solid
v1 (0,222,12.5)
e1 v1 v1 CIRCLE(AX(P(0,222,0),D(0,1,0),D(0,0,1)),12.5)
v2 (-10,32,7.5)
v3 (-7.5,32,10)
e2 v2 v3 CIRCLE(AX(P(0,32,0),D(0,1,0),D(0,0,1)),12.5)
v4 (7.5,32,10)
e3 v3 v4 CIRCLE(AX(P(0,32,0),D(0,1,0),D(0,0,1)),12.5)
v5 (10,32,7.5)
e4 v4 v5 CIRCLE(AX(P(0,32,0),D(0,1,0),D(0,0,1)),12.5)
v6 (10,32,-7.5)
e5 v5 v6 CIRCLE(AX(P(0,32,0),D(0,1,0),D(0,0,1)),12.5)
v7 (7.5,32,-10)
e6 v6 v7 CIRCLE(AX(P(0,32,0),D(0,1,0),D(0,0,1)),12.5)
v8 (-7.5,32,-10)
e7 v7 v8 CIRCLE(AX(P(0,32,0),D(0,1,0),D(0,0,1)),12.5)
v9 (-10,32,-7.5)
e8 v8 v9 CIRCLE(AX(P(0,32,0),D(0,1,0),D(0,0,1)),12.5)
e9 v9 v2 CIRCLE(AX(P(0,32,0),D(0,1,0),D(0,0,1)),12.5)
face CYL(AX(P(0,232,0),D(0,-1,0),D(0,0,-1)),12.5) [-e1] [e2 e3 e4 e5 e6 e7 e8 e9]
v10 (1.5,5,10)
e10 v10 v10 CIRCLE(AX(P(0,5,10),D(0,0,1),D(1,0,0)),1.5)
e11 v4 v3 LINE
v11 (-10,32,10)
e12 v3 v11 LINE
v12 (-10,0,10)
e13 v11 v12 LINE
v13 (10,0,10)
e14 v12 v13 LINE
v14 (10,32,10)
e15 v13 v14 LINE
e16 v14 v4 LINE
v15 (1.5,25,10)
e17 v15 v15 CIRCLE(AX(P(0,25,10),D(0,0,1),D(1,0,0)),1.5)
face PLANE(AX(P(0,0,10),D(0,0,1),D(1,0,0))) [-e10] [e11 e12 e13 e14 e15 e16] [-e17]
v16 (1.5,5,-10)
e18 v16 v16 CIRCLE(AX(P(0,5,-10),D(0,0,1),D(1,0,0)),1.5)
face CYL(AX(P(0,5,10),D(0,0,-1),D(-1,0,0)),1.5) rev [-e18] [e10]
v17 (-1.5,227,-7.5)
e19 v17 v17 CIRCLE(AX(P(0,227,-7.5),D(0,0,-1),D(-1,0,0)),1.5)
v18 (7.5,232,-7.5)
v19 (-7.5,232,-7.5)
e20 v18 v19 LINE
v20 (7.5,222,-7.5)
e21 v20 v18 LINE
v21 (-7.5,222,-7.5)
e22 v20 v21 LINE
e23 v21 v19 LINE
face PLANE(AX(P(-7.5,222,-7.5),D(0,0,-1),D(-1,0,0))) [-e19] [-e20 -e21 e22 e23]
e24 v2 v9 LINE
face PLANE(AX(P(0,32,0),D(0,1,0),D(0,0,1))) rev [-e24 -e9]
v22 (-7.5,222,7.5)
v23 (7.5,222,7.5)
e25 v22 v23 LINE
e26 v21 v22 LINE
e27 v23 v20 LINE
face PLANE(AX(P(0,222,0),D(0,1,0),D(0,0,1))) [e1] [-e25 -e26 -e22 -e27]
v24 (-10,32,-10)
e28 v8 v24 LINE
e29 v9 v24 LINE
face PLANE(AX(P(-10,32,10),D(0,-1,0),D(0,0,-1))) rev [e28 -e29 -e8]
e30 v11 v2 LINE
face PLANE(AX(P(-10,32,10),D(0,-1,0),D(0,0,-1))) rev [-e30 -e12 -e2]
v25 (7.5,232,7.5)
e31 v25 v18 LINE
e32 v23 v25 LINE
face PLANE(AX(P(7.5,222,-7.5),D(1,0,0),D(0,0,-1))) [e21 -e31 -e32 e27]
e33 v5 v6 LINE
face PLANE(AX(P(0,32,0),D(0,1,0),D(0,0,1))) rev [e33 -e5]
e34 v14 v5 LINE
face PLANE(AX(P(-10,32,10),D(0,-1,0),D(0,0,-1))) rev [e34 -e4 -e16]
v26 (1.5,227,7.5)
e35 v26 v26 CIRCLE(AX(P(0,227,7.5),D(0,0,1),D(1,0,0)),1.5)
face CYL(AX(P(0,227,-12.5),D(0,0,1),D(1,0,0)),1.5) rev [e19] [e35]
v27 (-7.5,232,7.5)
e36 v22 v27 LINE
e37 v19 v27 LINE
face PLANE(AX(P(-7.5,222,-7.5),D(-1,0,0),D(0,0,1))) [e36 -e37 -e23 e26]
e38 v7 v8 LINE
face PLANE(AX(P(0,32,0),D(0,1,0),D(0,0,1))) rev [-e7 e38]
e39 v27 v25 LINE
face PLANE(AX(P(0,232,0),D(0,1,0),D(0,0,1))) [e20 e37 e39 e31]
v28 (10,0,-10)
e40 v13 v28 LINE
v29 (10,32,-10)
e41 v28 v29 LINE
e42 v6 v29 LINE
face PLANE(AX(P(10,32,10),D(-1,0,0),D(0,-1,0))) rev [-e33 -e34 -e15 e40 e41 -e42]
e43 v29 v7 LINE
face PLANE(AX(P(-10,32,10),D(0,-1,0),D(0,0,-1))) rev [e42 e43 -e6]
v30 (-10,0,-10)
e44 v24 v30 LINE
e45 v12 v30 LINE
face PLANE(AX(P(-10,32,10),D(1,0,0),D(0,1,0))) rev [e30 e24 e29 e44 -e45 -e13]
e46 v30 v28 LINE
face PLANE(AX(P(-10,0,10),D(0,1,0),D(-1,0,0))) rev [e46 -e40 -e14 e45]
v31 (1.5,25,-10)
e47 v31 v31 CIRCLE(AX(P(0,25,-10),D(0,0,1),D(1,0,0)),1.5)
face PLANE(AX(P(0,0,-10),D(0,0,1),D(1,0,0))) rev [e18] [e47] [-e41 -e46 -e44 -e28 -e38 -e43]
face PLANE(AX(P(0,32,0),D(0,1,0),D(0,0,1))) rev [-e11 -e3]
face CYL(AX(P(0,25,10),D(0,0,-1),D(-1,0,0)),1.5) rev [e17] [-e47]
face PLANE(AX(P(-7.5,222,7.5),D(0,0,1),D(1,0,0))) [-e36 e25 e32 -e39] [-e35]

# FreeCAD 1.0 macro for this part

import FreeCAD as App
import Part
import Sketcher
Q = App.Units.Quantity

doc = App.newDocument("Part")
body = doc.addObject("PartDesign::Body", "Body")

# Sketch on XY plane
sketch1 = body.newObject("Sketcher::SketchObject", "Sketch")
sketch1.AttachmentSupport = (doc.getObject("XY_Plane"), [""])
sketch1.MapMode = "FlatFace"
sketch1.addGeometry(Part.LineSegment(App.Vector(-10, 32, 0), App.Vector(-10, 0, 0)), False)
sketch1.addGeometry(Part.LineSegment(App.Vector(-10, 0, 0), App.Vector(10, 0, 0)), False)
sketch1.addGeometry(Part.LineSegment(App.Vector(10, 0, 0), App.Vector(10, 32, 0)), False)
sketch1.addGeometry(Part.LineSegment(App.Vector(10, 32, 0), App.Vector(-10, 32, 0)), False)
sketch1.addGeometry(Part.Circle(App.Vector(0, 5, 0), App.Vector(0, 0, 1), 1.5), False)
sketch1.addGeometry(Part.Circle(App.Vector(0, 25, 0), App.Vector(0, 0, 1), 1.5), False)
sketch1.addConstraint(Sketcher.Constraint("Coincident", 0, 2, 1, 1))
sketch1.addConstraint(Sketcher.Constraint("Coincident", 1, 2, 2, 1))
sketch1.addConstraint(Sketcher.Constraint("Coincident", 2, 2, 3, 1))
sketch1.addConstraint(Sketcher.Constraint("Coincident", 3, 2, 0, 1))
sketch1.addConstraint(Sketcher.Constraint("Vertical", 0))
sketch1.addConstraint(Sketcher.Constraint("Horizontal", 1))
sketch1.addConstraint(Sketcher.Constraint("Vertical", 2))
sketch1.addConstraint(Sketcher.Constraint("Horizontal", 3))
sketch1.addConstraint(Sketcher.Constraint("Equal", 4, 5))
sketch1.addConstraint(Sketcher.Constraint("Symmetric", 0, 2, 1, 2, -1, 1))
sketch1.addConstraint(Sketcher.Constraint("PointOnObject", 4, 3, -2))
sketch1.addConstraint(Sketcher.Constraint("PointOnObject", 5, 3, -2))
sketch1.addConstraint(Sketcher.Constraint("Diameter", 4, Q("3 mm")))
sketch1.addConstraint(Sketcher.Constraint("DistanceX", 1, 1, 1, 2, Q("20 mm")))
sketch1.addConstraint(Sketcher.Constraint("DistanceY", 0, 2, 0, 1, Q("32 mm")))
sketch1.addConstraint(Sketcher.Constraint("DistanceY", -1, 1, 4, 3, Q("5 mm")))
sketch1.addConstraint(Sketcher.Constraint("DistanceY", -1, 1, 5, 3, Q("25 mm")))
pad1 = body.newObject("PartDesign::Pad", "Pad")
pad1.Profile = sketch1
pad1.Length = 20
pad1.Midplane = True

# Sketch on XZ plane
sketch2 = body.newObject("Sketcher::SketchObject", "Sketch001")
sketch2.AttachmentSupport = (doc.getObject("XZ_Plane"), [""])
sketch2.MapMode = "FlatFace"
sketch2.AttachmentOffset = App.Placement(App.Vector(0, 0, -32), App.Rotation())
sketch2.addGeometry(Part.Circle(App.Vector(0, 0, 0), App.Vector(0, 0, 1), 12), False)
sketch2.addConstraint(Sketcher.Constraint("Coincident", 0, 3, -1, 1))
sketch2.addConstraint(Sketcher.Constraint("Diameter", 0, Q("25 mm")))
pad2 = body.newObject("PartDesign::Pad", "Pad001")
pad2.Profile = sketch2
pad2.Length = 200
pad2.Reversed = True

# Sketch on XZ plane
sketch3 = body.newObject("Sketcher::SketchObject", "Sketch002")
sketch3.AttachmentSupport = (doc.getObject("XZ_Plane"), [""])
sketch3.MapMode = "FlatFace"
sketch3.AttachmentOffset = App.Placement(App.Vector(0, 0, -232), App.Rotation())
sketch3.addGeometry(Part.LineSegment(App.Vector(-37, -37, 0), App.Vector(-37, 37, 0)), False)
sketch3.addGeometry(Part.LineSegment(App.Vector(-37, 37, 0), App.Vector(37, 37, 0)), False)
sketch3.addGeometry(Part.LineSegment(App.Vector(37, 37, 0), App.Vector(37, -37, 0)), False)
sketch3.addGeometry(Part.LineSegment(App.Vector(37, -37, 0), App.Vector(-37, -37, 0)), False)
sketch3.addGeometry(Part.LineSegment(App.Vector(8, 8, 0), App.Vector(-8, 8, 0)), False)
sketch3.addGeometry(Part.LineSegment(App.Vector(-8, 8, 0), App.Vector(-8, -8, 0)), False)
sketch3.addGeometry(Part.LineSegment(App.Vector(-8, -8, 0), App.Vector(8, -8, 0)), False)
sketch3.addGeometry(Part.LineSegment(App.Vector(8, -8, 0), App.Vector(8, 8, 0)), False)
sketch3.addConstraint(Sketcher.Constraint("Coincident", 0, 2, 1, 1))
sketch3.addConstraint(Sketcher.Constraint("Coincident", 1, 2, 2, 1))
sketch3.addConstraint(Sketcher.Constraint("Coincident", 2, 2, 3, 1))
sketch3.addConstraint(Sketcher.Constraint("Coincident", 3, 2, 0, 1))
sketch3.addConstraint(Sketcher.Constraint("Coincident", 4, 2, 5, 1))
sketch3.addConstraint(Sketcher.Constraint("Coincident", 5, 2, 6, 1))
sketch3.addConstraint(Sketcher.Constraint("Coincident", 6, 2, 7, 1))
sketch3.addConstraint(Sketcher.Constraint("Coincident", 7, 2, 4, 1))
sketch3.addConstraint(Sketcher.Constraint("Vertical", 0))
sketch3.addConstraint(Sketcher.Constraint("Horizontal", 1))
sketch3.addConstraint(Sketcher.Constraint("Vertical", 2))
sketch3.addConstraint(Sketcher.Constraint("Horizontal", 3))
sketch3.addConstraint(Sketcher.Constraint("Horizontal", 4))
sketch3.addConstraint(Sketcher.Constraint("Vertical", 5))
sketch3.addConstraint(Sketcher.Constraint("Horizontal", 6))
sketch3.addConstraint(Sketcher.Constraint("Vertical", 7))
sketch3.addConstraint(Sketcher.Constraint("Symmetric", 0, 2, 2, 2, -1, 1))
sketch3.addConstraint(Sketcher.Constraint("Symmetric", 4, 2, 6, 2, -1, 1))
sketch3.addConstraint(Sketcher.Constraint("Equal", 3, 0))
sketch3.addConstraint(Sketcher.Constraint("Equal", 6, 5))
sketch3.addConstraint(Sketcher.Constraint("DistanceX", 4, 2, 4, 1, Q("15 mm")))
sketch3.addConstraint(Sketcher.Constraint("DistanceX", 1, 1, 1, 2, Q("73.936 mm")))
pocket1 = body.newObject("PartDesign::Pocket", "Pocket")
pocket1.Profile = sketch3
pocket1.Length = 10
pocket1.Reversed = True

# Sketch on XY plane
sketch4 = body.newObject("Sketcher::SketchObject", "Sketch003")
sketch4.AttachmentSupport = (doc.getObject("XY_Plane"), [""])
sketch4.MapMode = "FlatFace"
sketch4.AttachmentOffset = App.Placement(App.Vector(0, 0, 7.5), App.Rotation())
sketch4.addGeometry(Part.Circle(App.Vector(0, 227, 0), App.Vector(0, 0, 1), 1.5), False)
sketch4.addConstraint(Sketcher.Constraint("PointOnObject", 0, 3, -2))
sketch4.addConstraint(Sketcher.Constraint("Diameter", 0, Q("3 mm")))
sketch4.addConstraint(Sketcher.Constraint("DistanceY", -1, 1, 0, 3, Q("227 mm")))
pocket2 = body.newObject("PartDesign::Pocket", "Pocket001")
pocket2.Profile = sketch4
pocket2.Type = "ThroughAll"

doc.recompute()
